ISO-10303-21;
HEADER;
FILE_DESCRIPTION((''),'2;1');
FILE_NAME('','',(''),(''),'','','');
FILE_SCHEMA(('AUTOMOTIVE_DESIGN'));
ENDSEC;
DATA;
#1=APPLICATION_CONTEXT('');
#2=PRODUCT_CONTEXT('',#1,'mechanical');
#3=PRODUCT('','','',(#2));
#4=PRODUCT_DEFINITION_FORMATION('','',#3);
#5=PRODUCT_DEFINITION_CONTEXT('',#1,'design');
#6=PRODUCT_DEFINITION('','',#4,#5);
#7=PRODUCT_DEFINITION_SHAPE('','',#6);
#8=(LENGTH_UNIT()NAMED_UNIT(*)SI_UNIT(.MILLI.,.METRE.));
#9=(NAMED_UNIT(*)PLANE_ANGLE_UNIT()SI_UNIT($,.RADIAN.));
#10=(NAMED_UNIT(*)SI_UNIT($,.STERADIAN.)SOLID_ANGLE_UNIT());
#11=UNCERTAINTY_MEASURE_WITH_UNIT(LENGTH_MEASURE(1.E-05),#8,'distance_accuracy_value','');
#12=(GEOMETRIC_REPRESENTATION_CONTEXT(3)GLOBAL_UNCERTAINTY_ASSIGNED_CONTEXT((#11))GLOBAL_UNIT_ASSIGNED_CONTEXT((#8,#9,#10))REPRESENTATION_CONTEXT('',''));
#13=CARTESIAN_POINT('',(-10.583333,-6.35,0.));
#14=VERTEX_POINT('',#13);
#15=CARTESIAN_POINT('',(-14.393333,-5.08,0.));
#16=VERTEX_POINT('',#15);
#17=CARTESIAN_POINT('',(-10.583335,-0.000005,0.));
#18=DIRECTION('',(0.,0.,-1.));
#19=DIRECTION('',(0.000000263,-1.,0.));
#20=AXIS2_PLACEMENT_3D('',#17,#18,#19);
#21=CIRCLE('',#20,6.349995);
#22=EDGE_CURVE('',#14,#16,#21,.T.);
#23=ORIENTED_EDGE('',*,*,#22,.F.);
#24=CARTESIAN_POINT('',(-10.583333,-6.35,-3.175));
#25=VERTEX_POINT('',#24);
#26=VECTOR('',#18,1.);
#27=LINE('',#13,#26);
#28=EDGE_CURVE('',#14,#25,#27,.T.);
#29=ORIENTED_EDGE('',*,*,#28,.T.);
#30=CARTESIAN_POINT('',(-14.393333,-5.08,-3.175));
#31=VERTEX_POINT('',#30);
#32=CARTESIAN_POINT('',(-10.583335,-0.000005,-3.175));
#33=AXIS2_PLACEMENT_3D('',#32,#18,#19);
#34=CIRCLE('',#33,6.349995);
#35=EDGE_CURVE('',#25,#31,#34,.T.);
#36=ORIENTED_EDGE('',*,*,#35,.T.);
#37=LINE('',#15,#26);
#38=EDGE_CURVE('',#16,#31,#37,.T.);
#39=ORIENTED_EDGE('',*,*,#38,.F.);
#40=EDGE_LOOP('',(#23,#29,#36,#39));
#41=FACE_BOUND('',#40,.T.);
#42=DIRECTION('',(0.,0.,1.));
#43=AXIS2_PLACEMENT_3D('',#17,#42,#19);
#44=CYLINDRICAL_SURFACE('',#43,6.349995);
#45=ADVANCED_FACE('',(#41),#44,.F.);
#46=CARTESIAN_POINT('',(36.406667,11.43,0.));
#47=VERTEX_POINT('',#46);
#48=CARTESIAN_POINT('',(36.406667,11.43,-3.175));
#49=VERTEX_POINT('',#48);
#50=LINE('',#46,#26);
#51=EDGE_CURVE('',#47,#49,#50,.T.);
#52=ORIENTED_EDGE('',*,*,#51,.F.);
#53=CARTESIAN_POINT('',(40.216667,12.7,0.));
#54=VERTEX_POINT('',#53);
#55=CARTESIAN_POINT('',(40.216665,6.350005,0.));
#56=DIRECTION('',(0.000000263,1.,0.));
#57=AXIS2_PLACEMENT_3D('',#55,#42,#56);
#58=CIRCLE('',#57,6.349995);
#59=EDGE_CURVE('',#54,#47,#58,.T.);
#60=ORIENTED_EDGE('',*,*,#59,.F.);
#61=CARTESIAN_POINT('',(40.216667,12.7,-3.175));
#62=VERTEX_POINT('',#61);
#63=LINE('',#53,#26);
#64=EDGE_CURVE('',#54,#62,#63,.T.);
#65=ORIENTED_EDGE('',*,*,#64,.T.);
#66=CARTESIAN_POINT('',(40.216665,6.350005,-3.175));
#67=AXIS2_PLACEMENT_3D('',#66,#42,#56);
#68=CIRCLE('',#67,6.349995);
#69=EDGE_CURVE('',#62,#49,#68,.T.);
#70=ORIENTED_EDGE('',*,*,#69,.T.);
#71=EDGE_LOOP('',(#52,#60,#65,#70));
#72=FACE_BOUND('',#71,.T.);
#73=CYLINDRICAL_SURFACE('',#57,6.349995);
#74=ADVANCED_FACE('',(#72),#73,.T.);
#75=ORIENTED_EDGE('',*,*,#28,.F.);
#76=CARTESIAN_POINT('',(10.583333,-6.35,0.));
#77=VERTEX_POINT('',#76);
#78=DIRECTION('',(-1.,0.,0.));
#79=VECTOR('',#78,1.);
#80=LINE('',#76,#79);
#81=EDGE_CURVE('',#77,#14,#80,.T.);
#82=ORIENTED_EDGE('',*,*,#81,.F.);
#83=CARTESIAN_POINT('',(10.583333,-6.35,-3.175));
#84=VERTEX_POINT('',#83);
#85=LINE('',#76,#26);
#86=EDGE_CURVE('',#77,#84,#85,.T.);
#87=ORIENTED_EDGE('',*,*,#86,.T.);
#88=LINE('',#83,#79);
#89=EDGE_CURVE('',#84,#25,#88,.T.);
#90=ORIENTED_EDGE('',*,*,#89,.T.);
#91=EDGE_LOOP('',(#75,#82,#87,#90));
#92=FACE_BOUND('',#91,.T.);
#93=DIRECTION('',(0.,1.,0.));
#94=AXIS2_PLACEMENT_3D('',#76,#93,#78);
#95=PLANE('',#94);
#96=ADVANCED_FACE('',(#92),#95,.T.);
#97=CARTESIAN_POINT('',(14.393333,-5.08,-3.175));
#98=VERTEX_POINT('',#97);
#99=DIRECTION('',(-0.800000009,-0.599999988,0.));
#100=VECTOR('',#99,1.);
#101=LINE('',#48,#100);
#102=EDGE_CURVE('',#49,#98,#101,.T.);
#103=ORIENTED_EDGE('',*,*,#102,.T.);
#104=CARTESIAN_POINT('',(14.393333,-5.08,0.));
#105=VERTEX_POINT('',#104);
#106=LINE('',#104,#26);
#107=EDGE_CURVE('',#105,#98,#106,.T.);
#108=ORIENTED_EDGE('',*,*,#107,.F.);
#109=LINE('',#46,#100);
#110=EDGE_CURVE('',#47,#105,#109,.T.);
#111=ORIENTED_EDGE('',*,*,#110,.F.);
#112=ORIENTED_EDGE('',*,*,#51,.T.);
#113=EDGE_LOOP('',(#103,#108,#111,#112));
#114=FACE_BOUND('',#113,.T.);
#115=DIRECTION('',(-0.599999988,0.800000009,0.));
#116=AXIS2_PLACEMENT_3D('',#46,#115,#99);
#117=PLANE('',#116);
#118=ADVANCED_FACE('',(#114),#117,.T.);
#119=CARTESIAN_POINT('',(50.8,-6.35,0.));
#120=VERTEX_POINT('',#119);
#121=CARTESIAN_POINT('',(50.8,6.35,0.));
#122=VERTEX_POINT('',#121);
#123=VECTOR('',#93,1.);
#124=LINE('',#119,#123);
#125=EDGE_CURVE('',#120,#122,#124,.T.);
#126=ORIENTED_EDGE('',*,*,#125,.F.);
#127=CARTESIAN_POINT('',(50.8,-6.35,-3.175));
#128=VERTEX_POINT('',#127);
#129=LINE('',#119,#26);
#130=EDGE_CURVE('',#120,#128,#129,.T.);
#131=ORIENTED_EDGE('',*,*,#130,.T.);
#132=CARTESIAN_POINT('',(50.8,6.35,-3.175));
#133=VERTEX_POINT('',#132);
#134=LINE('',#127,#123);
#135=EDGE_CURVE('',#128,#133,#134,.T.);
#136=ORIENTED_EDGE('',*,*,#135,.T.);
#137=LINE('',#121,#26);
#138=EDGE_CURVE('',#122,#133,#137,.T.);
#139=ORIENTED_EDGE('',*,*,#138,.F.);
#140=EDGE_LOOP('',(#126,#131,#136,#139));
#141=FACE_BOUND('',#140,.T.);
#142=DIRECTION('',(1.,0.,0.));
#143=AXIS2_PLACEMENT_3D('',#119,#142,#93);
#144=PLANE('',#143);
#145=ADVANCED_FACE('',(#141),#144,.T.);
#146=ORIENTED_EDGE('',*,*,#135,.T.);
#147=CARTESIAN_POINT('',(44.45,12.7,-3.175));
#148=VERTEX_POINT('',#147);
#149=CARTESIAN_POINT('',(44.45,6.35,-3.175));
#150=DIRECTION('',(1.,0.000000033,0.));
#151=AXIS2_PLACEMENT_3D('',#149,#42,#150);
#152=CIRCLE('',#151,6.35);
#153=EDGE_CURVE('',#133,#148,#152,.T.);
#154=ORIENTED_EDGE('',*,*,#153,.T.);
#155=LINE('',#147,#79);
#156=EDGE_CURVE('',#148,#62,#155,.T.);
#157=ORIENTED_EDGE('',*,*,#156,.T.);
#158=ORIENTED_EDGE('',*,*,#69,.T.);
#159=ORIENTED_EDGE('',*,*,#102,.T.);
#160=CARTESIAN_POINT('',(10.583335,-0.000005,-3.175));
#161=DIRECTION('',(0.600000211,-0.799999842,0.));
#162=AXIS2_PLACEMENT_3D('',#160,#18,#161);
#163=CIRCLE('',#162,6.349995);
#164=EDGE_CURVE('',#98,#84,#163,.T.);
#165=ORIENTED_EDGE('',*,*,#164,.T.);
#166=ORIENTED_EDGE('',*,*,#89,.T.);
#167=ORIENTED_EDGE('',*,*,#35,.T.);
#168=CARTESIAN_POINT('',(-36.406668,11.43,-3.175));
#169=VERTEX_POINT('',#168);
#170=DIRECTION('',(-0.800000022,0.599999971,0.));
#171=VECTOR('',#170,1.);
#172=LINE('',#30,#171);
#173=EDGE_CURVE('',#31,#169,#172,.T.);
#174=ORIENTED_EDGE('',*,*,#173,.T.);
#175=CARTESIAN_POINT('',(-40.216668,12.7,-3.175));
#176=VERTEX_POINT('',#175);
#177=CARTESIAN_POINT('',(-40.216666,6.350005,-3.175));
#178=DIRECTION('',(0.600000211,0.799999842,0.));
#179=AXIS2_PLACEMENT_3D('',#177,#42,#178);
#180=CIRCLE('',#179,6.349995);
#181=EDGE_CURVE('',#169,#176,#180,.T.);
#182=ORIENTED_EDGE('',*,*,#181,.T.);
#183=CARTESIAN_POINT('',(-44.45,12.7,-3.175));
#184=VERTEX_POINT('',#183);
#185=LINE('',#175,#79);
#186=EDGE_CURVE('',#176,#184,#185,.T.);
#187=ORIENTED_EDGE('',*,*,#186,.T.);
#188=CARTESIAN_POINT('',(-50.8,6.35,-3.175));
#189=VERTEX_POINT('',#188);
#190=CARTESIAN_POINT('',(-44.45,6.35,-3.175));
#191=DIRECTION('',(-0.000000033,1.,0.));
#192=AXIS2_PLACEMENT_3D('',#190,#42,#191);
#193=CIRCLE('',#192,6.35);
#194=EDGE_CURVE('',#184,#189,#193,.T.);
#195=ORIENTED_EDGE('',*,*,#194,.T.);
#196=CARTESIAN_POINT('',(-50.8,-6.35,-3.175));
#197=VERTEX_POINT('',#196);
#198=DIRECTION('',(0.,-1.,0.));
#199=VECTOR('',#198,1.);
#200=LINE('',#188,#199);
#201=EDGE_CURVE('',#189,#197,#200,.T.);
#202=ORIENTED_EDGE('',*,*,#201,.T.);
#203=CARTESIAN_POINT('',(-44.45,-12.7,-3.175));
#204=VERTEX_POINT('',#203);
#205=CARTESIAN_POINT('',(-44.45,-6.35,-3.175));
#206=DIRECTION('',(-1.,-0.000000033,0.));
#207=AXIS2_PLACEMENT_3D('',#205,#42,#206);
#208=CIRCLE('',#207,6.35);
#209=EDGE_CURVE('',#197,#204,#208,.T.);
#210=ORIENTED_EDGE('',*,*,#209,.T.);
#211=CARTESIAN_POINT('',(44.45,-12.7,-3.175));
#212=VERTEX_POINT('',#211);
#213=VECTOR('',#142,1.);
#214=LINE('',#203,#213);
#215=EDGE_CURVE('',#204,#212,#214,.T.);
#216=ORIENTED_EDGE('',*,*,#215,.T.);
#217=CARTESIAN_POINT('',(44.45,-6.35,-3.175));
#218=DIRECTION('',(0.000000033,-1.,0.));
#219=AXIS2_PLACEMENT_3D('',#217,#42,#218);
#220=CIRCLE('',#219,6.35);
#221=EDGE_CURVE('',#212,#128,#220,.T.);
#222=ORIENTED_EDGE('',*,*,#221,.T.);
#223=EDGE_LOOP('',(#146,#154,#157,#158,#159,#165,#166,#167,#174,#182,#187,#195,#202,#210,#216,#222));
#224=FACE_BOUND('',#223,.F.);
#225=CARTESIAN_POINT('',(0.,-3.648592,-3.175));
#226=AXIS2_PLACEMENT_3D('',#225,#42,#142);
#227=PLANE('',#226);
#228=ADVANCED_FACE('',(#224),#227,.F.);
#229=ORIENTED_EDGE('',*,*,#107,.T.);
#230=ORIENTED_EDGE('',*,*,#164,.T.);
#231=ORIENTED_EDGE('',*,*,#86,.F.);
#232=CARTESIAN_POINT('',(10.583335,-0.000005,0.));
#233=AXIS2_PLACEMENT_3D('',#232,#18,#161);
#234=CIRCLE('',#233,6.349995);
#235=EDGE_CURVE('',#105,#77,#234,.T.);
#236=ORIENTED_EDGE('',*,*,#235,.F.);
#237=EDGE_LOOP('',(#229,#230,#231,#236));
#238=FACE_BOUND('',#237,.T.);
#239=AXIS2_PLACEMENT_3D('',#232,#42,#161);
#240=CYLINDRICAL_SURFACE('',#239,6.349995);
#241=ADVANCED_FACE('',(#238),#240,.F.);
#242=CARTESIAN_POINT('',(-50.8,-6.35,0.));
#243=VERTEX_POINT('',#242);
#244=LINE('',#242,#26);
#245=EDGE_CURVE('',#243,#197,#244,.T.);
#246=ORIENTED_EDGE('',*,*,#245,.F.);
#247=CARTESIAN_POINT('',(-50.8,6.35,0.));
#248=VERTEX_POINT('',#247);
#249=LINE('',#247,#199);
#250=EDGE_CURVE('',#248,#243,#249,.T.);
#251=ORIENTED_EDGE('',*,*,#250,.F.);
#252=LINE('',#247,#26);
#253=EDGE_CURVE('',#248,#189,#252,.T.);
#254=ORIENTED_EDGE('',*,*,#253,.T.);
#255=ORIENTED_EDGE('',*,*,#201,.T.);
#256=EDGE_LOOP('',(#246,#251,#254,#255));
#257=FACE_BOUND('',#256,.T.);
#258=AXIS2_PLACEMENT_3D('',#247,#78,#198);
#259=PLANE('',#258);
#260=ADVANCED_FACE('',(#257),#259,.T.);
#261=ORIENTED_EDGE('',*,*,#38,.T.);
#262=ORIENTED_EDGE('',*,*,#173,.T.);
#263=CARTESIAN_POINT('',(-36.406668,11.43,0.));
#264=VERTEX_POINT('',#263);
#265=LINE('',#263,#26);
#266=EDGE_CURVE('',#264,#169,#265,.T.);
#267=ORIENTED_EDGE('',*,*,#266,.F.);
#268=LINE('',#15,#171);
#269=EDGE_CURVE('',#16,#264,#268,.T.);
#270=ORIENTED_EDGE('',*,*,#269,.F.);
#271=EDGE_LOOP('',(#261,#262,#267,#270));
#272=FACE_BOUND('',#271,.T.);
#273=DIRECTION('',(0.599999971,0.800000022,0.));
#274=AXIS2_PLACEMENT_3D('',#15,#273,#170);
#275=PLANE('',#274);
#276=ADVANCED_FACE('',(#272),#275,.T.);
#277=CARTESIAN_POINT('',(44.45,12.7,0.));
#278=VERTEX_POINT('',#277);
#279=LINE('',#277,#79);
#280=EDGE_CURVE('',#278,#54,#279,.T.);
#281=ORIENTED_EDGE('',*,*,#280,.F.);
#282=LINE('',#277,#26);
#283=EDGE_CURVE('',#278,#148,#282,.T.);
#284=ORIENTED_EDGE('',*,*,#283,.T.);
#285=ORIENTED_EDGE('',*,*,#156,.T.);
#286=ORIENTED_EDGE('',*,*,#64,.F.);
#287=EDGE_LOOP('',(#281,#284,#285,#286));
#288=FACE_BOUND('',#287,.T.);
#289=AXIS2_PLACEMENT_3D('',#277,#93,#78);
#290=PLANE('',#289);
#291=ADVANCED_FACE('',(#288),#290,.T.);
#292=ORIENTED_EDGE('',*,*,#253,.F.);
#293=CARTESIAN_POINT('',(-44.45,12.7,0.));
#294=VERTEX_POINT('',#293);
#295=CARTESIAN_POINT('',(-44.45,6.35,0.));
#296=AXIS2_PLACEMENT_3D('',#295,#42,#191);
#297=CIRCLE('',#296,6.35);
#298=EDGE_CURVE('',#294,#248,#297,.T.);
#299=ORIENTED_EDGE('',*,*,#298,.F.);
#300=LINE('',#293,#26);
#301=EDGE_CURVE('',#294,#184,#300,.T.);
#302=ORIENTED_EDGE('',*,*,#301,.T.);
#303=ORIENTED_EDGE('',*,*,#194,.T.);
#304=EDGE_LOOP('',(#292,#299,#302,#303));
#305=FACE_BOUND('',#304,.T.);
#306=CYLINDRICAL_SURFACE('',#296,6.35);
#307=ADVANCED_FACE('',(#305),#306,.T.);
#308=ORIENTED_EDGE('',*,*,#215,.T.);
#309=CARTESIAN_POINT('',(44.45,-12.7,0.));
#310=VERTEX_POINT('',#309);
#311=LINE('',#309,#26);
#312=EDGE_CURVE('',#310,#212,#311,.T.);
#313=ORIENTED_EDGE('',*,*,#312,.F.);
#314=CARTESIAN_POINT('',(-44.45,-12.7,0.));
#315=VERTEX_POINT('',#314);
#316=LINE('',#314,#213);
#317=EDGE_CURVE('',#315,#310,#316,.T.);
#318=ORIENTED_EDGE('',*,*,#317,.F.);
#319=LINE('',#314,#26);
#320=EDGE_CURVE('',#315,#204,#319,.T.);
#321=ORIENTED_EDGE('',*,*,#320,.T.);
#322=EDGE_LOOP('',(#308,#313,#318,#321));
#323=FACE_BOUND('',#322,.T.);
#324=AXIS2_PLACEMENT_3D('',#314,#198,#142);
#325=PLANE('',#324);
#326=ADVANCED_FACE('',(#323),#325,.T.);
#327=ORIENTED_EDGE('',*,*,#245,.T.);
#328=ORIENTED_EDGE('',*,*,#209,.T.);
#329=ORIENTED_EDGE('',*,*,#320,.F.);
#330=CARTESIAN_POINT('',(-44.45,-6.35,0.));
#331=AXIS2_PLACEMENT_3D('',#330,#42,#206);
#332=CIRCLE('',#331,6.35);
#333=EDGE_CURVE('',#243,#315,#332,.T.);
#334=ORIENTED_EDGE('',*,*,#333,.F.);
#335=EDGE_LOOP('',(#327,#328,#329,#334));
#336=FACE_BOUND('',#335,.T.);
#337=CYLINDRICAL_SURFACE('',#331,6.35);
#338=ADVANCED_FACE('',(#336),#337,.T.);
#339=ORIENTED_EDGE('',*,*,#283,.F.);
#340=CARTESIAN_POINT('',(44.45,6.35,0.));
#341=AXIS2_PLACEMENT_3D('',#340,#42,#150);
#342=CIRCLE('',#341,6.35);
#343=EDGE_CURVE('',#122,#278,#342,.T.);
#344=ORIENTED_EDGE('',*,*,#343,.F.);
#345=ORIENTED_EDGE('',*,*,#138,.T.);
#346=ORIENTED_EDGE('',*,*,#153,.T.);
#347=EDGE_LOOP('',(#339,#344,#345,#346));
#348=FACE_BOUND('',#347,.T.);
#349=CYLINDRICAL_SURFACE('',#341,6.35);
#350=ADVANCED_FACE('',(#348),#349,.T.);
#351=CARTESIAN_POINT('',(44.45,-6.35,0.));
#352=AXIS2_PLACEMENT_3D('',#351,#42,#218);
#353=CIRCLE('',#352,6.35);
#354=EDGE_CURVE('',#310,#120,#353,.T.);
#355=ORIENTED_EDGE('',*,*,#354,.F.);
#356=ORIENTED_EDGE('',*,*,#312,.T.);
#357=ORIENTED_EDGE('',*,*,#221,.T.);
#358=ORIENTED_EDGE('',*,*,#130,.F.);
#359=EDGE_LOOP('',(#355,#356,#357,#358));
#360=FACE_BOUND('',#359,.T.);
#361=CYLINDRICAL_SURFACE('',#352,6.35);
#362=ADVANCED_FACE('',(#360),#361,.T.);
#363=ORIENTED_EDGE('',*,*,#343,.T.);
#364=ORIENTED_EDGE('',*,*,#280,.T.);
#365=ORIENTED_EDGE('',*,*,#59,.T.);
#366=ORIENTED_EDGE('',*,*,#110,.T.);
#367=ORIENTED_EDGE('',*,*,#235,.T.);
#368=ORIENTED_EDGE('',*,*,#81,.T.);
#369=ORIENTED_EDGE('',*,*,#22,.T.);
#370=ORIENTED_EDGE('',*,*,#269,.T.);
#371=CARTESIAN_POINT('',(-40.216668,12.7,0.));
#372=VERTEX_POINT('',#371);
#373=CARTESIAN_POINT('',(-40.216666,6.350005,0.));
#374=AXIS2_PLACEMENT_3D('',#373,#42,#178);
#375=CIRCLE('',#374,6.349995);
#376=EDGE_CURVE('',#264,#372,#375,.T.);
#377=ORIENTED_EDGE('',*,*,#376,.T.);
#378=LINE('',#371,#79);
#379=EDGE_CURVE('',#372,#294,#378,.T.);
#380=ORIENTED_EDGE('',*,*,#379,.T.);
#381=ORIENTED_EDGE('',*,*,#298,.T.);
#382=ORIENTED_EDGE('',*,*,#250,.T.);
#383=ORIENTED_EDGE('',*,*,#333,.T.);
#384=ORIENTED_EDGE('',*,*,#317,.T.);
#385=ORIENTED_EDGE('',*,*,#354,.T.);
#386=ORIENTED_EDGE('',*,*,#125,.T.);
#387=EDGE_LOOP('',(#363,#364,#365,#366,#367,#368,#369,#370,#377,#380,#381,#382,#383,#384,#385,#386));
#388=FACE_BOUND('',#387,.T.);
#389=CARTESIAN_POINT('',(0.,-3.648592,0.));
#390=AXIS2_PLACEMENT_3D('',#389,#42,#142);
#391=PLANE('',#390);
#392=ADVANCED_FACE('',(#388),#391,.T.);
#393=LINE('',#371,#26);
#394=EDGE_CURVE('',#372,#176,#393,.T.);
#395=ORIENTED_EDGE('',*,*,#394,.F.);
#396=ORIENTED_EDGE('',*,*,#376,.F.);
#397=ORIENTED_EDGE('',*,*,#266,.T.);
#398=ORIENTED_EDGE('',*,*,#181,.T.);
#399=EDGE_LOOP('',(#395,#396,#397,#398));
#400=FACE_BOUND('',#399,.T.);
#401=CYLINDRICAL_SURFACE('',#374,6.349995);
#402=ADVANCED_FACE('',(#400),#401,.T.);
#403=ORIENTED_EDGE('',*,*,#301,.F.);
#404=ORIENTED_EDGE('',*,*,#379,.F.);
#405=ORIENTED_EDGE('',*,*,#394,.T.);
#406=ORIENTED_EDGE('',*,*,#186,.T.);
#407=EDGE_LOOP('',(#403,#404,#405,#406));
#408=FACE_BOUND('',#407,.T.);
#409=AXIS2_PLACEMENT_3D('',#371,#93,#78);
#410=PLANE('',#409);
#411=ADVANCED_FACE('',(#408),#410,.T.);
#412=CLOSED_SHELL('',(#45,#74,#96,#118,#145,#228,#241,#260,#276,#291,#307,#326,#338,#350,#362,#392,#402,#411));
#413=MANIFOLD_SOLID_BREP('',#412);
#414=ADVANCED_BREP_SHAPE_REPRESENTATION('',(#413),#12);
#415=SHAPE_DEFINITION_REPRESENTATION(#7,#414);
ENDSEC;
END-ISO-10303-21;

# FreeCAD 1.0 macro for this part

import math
import FreeCAD as App
import Part
import Sketcher

V = App.Vector
Q = App.Units.Quantity

doc = App.newDocument("Part")
params = doc.addObject("Spreadsheet::Sheet", "Params")
for row, (alias, value) in enumerate([
    ("sketch1_radius", "0.2499998 in"),
    ("sketch1_radius2", "0.25 in"),
    ("sketch1_width", "3.5 in"),
    ("sketch1_height", "0.5 in"),
    ("pad1_length", "0.125 in"),
], start=1):
    params.set(f"A{row}", alias)
    params.set(f"B{row}", "=" + value)
    params.setAlias(f"B{row}", alias)

body = doc.addObject("PartDesign::Body", "Body")

sketch1 = body.newObject("Sketcher::SketchObject", "Sketch")
sketch1.AttachmentSupport = (doc.getObject("XY_Plane"), [""])
sketch1.MapMode = "FlatFace"
sketch1.addGeometry([
    Part.ArcOfCircle(Part.Circle(V(-40.2, 6.4, 0), V(0, 0, 1), 6.3), math.radians(53), math.radians(90)),
    Part.LineSegment(V(-40.2, 12.7, 0), V(-44.5, 12.7, 0)),
    Part.ArcOfCircle(Part.Circle(V(-44.4, 6.3, 0), V(0, 0, 1), 6.4), math.radians(90), math.radians(180)),
    Part.LineSegment(V(-50.8, 6.3, 0), V(-50.8, -6.3, 0)),
    Part.ArcOfCircle(Part.Circle(V(-44.4, -6.3, 0), V(0, 0, 1), 6.4), math.radians(-180), math.radians(-90)),
    Part.LineSegment(V(-44.5, -12.7, 0), V(44.5, -12.7, 0)),
    Part.ArcOfCircle(Part.Circle(V(44.4, -6.3, 0), V(0, 0, 1), 6.4), math.radians(-90), math.radians(0)),
    Part.LineSegment(V(50.8, -6.3, 0), V(50.8, 6.3, 0)),
    Part.ArcOfCircle(Part.Circle(V(44.4, 6.3, 0), V(0, 0, 1), 6.4), math.radians(0), math.radians(90)),
    Part.LineSegment(V(44.5, 12.7, 0), V(40.2, 12.7, 0)),
    Part.ArcOfCircle(Part.Circle(V(40.2, 6.4, 0), V(0, 0, 1), 6.3), math.radians(90), math.radians(127)),
    Part.LineSegment(V(36.4, 11.4, 0), V(14.4, -5.1, 0)),
    Part.ArcOfCircle(Part.Circle(V(10.6, 0, 0), V(0, 0, 1), 6.3), math.radians(-90), math.radians(-53)),
    Part.LineSegment(V(10.6, -6.3, 0), V(-10.6, -6.3, 0)),
    Part.ArcOfCircle(Part.Circle(V(-10.6, 0, 0), V(0, 0, 1), 6.3), math.radians(-127), math.radians(-90)),
    Part.LineSegment(V(-14.4, -5.1, 0), V(-36.4, 11.4, 0)),
], False)
sketch1.addConstraint([
    Sketcher.Constraint("Tangent", 0, 2, 1, 1),
    Sketcher.Constraint("Tangent", 1, 2, 2, 1),
    Sketcher.Constraint("Tangent", 2, 2, 3, 1),
    Sketcher.Constraint("Tangent", 3, 2, 4, 1),
    Sketcher.Constraint("Tangent", 4, 2, 5, 1),
    Sketcher.Constraint("Tangent", 5, 2, 6, 1),
    Sketcher.Constraint("Tangent", 6, 2, 7, 1),
    Sketcher.Constraint("Tangent", 7, 2, 8, 1),
    Sketcher.Constraint("Tangent", 8, 2, 9, 1),
    Sketcher.Constraint("Tangent", 9, 2, 10, 1),
    Sketcher.Constraint("Tangent", 10, 2, 11, 1),
    Sketcher.Constraint("Tangent", 11, 2, 12, 2),
    Sketcher.Constraint("Tangent", 12, 1, 13, 1),
    Sketcher.Constraint("Tangent", 13, 2, 14, 2),
    Sketcher.Constraint("Tangent", 14, 1, 15, 1),
    Sketcher.Constraint("Tangent", 15, 2, 0, 1),
    Sketcher.Constraint("Horizontal", 1),
    Sketcher.Constraint("Vertical", 3),
    Sketcher.Constraint("Horizontal", 5),
    Sketcher.Constraint("Vertical", 7),
    Sketcher.Constraint("Horizontal", 9),
    Sketcher.Constraint("Horizontal", 13),
    Sketcher.Constraint("Equal", 2, 4),
    Sketcher.Constraint("Equal", 4, 6),
    Sketcher.Constraint("Equal", 6, 8),
    Sketcher.Constraint("Equal", 0, 10),
    Sketcher.Constraint("Equal", 10, 12),
    Sketcher.Constraint("Equal", 12, 14),
    Sketcher.Constraint("Symmetric", 2, 3, 6, 3, -1, 1),
    Sketcher.Constraint("Symmetric", 0, 3, 10, 3, -2),
    Sketcher.Constraint("Horizontal", 6, 2, 12, 1),
    Sketcher.Constraint("Horizontal", 11, 2, 14, 1),
    Sketcher.Constraint("Radius", 0, Q("0.2499998 in")),
    Sketcher.Constraint("Radius", 2, Q("0.25 in")),
    Sketcher.Constraint("DistanceX", 5, 1, 5, 2, Q("3.5 in")),
    Sketcher.Constraint("DistanceY", 3, 2, 3, 1, Q("0.5 in")),
    Sketcher.Constraint("DistanceX", 0, 3, 12, 3, Q("2 in")),
    Sketcher.Constraint("DistanceY", 11, 2, -1, 1, Q("0.2 in")),
])
sketch1.setExpression("Constraints[32]", "Params.sketch1_radius")
sketch1.setExpression("Constraints[33]", "Params.sketch1_radius2")
sketch1.setExpression("Constraints[34]", "Params.sketch1_width")
sketch1.setExpression("Constraints[35]", "Params.sketch1_height")
pad1 = body.newObject("PartDesign::Pad", "Pad")
pad1.Profile = sketch1
pad1.setExpression("Length", "Params.pad1_length")
pad1.Reversed = True

doc.recompute()
